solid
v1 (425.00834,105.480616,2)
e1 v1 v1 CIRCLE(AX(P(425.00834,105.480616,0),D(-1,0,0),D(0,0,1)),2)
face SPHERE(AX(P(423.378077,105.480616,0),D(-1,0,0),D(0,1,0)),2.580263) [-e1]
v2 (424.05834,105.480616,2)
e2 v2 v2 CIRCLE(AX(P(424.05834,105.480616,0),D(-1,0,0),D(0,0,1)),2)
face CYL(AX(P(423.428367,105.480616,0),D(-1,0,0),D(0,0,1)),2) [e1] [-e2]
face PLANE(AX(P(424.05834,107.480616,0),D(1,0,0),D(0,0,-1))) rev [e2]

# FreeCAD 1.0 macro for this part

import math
import FreeCAD as App
import Part
import Sketcher

V = App.Vector
Q = App.Units.Quantity

doc = App.newDocument("Part")
params = doc.addObject("Spreadsheet::Sheet", "Params")
for row, (alias, value) in enumerate([
    ("sketch1_height", "2 mm"),
    ("sketch1_width", "1.9 mm"),
    ("sketch1_width2", "0.95 mm"),
    ("revolution_angle", "360 deg"),
], start=1):
    params.set(f"A{row}", alias)
    params.set(f"B{row}", "=" + value)
    params.setAlias(f"B{row}", alias)

body = doc.addObject("PartDesign::Body", "Body")

sketch1 = body.newObject("Sketcher::SketchObject", "Sketch")
sketch1.AttachmentSupport = (doc.getObject("XY_Plane"), [""])
sketch1.MapMode = "FlatFace"
sketch1.addGeometry([
    Part.LineSegment(V(424.05834, 105.480616, 0), V(425.95834, 105.480616, 0)),
    Part.ArcOfCircle(Part.Circle(V(423.378077, 105.480616, 0), V(0, 0, 1), 2.580263), math.radians(0), math.radians(50.815437)),
    Part.LineSegment(V(425.00834, 107.480616, 0), V(424.05834, 107.480616, 0)),
    Part.LineSegment(V(424.05834, 107.480616, 0), V(424.05834, 105.480616, 0)),
], False)
sketch1.addGeometry(Part.LineSegment(V(423.378077, 105.480616, 0), V(425.95834, 105.480616, 0)), True)
sketch1.addConstraint([
    Sketcher.Constraint("Coincident", 0, 2, 1, 1),
    Sketcher.Constraint("Coincident", 1, 2, 2, 1),
    Sketcher.Constraint("Coincident", 2, 2, 3, 1),
    Sketcher.Constraint("Coincident", 3, 2, 0, 1),
    Sketcher.Constraint("Horizontal", 0),
    Sketcher.Constraint("Horizontal", 2),
    Sketcher.Constraint("Vertical", 3),
    Sketcher.Constraint("Horizontal", 4),
    Sketcher.Constraint("Coincident", 4, 1, 1, 3),
    Sketcher.Constraint("Coincident", 4, 2, 0, 2),
    Sketcher.Constraint("DistanceY", 3, 2, 3, 1, Q("2 mm")),
    Sketcher.Constraint("DistanceX", 0, 1, 0, 2, Q("1.9 mm")),
    Sketcher.Constraint("DistanceX", 2, 2, 2, 1, Q("0.95 mm")),
    Sketcher.Constraint("DistanceX", -1, 1, 0, 2, Q("425.95834 mm")),
    Sketcher.Constraint("DistanceY", -1, 1, 1, 3, Q("105.480616 mm")),
])
sketch1.setExpression("Constraints[10]", "Params.sketch1_height")
sketch1.setExpression("Constraints[11]", "Params.sketch1_width")
sketch1.setExpression("Constraints[12]", "Params.sketch1_width2")
revolution = body.newObject("PartDesign::Revolution", "Revolution")
revolution.Profile = sketch1
revolution.ReferenceAxis = (sketch1, ["Axis0"])
revolution.setExpression("Angle", "Params.revolution_angle")

doc.recompute()
